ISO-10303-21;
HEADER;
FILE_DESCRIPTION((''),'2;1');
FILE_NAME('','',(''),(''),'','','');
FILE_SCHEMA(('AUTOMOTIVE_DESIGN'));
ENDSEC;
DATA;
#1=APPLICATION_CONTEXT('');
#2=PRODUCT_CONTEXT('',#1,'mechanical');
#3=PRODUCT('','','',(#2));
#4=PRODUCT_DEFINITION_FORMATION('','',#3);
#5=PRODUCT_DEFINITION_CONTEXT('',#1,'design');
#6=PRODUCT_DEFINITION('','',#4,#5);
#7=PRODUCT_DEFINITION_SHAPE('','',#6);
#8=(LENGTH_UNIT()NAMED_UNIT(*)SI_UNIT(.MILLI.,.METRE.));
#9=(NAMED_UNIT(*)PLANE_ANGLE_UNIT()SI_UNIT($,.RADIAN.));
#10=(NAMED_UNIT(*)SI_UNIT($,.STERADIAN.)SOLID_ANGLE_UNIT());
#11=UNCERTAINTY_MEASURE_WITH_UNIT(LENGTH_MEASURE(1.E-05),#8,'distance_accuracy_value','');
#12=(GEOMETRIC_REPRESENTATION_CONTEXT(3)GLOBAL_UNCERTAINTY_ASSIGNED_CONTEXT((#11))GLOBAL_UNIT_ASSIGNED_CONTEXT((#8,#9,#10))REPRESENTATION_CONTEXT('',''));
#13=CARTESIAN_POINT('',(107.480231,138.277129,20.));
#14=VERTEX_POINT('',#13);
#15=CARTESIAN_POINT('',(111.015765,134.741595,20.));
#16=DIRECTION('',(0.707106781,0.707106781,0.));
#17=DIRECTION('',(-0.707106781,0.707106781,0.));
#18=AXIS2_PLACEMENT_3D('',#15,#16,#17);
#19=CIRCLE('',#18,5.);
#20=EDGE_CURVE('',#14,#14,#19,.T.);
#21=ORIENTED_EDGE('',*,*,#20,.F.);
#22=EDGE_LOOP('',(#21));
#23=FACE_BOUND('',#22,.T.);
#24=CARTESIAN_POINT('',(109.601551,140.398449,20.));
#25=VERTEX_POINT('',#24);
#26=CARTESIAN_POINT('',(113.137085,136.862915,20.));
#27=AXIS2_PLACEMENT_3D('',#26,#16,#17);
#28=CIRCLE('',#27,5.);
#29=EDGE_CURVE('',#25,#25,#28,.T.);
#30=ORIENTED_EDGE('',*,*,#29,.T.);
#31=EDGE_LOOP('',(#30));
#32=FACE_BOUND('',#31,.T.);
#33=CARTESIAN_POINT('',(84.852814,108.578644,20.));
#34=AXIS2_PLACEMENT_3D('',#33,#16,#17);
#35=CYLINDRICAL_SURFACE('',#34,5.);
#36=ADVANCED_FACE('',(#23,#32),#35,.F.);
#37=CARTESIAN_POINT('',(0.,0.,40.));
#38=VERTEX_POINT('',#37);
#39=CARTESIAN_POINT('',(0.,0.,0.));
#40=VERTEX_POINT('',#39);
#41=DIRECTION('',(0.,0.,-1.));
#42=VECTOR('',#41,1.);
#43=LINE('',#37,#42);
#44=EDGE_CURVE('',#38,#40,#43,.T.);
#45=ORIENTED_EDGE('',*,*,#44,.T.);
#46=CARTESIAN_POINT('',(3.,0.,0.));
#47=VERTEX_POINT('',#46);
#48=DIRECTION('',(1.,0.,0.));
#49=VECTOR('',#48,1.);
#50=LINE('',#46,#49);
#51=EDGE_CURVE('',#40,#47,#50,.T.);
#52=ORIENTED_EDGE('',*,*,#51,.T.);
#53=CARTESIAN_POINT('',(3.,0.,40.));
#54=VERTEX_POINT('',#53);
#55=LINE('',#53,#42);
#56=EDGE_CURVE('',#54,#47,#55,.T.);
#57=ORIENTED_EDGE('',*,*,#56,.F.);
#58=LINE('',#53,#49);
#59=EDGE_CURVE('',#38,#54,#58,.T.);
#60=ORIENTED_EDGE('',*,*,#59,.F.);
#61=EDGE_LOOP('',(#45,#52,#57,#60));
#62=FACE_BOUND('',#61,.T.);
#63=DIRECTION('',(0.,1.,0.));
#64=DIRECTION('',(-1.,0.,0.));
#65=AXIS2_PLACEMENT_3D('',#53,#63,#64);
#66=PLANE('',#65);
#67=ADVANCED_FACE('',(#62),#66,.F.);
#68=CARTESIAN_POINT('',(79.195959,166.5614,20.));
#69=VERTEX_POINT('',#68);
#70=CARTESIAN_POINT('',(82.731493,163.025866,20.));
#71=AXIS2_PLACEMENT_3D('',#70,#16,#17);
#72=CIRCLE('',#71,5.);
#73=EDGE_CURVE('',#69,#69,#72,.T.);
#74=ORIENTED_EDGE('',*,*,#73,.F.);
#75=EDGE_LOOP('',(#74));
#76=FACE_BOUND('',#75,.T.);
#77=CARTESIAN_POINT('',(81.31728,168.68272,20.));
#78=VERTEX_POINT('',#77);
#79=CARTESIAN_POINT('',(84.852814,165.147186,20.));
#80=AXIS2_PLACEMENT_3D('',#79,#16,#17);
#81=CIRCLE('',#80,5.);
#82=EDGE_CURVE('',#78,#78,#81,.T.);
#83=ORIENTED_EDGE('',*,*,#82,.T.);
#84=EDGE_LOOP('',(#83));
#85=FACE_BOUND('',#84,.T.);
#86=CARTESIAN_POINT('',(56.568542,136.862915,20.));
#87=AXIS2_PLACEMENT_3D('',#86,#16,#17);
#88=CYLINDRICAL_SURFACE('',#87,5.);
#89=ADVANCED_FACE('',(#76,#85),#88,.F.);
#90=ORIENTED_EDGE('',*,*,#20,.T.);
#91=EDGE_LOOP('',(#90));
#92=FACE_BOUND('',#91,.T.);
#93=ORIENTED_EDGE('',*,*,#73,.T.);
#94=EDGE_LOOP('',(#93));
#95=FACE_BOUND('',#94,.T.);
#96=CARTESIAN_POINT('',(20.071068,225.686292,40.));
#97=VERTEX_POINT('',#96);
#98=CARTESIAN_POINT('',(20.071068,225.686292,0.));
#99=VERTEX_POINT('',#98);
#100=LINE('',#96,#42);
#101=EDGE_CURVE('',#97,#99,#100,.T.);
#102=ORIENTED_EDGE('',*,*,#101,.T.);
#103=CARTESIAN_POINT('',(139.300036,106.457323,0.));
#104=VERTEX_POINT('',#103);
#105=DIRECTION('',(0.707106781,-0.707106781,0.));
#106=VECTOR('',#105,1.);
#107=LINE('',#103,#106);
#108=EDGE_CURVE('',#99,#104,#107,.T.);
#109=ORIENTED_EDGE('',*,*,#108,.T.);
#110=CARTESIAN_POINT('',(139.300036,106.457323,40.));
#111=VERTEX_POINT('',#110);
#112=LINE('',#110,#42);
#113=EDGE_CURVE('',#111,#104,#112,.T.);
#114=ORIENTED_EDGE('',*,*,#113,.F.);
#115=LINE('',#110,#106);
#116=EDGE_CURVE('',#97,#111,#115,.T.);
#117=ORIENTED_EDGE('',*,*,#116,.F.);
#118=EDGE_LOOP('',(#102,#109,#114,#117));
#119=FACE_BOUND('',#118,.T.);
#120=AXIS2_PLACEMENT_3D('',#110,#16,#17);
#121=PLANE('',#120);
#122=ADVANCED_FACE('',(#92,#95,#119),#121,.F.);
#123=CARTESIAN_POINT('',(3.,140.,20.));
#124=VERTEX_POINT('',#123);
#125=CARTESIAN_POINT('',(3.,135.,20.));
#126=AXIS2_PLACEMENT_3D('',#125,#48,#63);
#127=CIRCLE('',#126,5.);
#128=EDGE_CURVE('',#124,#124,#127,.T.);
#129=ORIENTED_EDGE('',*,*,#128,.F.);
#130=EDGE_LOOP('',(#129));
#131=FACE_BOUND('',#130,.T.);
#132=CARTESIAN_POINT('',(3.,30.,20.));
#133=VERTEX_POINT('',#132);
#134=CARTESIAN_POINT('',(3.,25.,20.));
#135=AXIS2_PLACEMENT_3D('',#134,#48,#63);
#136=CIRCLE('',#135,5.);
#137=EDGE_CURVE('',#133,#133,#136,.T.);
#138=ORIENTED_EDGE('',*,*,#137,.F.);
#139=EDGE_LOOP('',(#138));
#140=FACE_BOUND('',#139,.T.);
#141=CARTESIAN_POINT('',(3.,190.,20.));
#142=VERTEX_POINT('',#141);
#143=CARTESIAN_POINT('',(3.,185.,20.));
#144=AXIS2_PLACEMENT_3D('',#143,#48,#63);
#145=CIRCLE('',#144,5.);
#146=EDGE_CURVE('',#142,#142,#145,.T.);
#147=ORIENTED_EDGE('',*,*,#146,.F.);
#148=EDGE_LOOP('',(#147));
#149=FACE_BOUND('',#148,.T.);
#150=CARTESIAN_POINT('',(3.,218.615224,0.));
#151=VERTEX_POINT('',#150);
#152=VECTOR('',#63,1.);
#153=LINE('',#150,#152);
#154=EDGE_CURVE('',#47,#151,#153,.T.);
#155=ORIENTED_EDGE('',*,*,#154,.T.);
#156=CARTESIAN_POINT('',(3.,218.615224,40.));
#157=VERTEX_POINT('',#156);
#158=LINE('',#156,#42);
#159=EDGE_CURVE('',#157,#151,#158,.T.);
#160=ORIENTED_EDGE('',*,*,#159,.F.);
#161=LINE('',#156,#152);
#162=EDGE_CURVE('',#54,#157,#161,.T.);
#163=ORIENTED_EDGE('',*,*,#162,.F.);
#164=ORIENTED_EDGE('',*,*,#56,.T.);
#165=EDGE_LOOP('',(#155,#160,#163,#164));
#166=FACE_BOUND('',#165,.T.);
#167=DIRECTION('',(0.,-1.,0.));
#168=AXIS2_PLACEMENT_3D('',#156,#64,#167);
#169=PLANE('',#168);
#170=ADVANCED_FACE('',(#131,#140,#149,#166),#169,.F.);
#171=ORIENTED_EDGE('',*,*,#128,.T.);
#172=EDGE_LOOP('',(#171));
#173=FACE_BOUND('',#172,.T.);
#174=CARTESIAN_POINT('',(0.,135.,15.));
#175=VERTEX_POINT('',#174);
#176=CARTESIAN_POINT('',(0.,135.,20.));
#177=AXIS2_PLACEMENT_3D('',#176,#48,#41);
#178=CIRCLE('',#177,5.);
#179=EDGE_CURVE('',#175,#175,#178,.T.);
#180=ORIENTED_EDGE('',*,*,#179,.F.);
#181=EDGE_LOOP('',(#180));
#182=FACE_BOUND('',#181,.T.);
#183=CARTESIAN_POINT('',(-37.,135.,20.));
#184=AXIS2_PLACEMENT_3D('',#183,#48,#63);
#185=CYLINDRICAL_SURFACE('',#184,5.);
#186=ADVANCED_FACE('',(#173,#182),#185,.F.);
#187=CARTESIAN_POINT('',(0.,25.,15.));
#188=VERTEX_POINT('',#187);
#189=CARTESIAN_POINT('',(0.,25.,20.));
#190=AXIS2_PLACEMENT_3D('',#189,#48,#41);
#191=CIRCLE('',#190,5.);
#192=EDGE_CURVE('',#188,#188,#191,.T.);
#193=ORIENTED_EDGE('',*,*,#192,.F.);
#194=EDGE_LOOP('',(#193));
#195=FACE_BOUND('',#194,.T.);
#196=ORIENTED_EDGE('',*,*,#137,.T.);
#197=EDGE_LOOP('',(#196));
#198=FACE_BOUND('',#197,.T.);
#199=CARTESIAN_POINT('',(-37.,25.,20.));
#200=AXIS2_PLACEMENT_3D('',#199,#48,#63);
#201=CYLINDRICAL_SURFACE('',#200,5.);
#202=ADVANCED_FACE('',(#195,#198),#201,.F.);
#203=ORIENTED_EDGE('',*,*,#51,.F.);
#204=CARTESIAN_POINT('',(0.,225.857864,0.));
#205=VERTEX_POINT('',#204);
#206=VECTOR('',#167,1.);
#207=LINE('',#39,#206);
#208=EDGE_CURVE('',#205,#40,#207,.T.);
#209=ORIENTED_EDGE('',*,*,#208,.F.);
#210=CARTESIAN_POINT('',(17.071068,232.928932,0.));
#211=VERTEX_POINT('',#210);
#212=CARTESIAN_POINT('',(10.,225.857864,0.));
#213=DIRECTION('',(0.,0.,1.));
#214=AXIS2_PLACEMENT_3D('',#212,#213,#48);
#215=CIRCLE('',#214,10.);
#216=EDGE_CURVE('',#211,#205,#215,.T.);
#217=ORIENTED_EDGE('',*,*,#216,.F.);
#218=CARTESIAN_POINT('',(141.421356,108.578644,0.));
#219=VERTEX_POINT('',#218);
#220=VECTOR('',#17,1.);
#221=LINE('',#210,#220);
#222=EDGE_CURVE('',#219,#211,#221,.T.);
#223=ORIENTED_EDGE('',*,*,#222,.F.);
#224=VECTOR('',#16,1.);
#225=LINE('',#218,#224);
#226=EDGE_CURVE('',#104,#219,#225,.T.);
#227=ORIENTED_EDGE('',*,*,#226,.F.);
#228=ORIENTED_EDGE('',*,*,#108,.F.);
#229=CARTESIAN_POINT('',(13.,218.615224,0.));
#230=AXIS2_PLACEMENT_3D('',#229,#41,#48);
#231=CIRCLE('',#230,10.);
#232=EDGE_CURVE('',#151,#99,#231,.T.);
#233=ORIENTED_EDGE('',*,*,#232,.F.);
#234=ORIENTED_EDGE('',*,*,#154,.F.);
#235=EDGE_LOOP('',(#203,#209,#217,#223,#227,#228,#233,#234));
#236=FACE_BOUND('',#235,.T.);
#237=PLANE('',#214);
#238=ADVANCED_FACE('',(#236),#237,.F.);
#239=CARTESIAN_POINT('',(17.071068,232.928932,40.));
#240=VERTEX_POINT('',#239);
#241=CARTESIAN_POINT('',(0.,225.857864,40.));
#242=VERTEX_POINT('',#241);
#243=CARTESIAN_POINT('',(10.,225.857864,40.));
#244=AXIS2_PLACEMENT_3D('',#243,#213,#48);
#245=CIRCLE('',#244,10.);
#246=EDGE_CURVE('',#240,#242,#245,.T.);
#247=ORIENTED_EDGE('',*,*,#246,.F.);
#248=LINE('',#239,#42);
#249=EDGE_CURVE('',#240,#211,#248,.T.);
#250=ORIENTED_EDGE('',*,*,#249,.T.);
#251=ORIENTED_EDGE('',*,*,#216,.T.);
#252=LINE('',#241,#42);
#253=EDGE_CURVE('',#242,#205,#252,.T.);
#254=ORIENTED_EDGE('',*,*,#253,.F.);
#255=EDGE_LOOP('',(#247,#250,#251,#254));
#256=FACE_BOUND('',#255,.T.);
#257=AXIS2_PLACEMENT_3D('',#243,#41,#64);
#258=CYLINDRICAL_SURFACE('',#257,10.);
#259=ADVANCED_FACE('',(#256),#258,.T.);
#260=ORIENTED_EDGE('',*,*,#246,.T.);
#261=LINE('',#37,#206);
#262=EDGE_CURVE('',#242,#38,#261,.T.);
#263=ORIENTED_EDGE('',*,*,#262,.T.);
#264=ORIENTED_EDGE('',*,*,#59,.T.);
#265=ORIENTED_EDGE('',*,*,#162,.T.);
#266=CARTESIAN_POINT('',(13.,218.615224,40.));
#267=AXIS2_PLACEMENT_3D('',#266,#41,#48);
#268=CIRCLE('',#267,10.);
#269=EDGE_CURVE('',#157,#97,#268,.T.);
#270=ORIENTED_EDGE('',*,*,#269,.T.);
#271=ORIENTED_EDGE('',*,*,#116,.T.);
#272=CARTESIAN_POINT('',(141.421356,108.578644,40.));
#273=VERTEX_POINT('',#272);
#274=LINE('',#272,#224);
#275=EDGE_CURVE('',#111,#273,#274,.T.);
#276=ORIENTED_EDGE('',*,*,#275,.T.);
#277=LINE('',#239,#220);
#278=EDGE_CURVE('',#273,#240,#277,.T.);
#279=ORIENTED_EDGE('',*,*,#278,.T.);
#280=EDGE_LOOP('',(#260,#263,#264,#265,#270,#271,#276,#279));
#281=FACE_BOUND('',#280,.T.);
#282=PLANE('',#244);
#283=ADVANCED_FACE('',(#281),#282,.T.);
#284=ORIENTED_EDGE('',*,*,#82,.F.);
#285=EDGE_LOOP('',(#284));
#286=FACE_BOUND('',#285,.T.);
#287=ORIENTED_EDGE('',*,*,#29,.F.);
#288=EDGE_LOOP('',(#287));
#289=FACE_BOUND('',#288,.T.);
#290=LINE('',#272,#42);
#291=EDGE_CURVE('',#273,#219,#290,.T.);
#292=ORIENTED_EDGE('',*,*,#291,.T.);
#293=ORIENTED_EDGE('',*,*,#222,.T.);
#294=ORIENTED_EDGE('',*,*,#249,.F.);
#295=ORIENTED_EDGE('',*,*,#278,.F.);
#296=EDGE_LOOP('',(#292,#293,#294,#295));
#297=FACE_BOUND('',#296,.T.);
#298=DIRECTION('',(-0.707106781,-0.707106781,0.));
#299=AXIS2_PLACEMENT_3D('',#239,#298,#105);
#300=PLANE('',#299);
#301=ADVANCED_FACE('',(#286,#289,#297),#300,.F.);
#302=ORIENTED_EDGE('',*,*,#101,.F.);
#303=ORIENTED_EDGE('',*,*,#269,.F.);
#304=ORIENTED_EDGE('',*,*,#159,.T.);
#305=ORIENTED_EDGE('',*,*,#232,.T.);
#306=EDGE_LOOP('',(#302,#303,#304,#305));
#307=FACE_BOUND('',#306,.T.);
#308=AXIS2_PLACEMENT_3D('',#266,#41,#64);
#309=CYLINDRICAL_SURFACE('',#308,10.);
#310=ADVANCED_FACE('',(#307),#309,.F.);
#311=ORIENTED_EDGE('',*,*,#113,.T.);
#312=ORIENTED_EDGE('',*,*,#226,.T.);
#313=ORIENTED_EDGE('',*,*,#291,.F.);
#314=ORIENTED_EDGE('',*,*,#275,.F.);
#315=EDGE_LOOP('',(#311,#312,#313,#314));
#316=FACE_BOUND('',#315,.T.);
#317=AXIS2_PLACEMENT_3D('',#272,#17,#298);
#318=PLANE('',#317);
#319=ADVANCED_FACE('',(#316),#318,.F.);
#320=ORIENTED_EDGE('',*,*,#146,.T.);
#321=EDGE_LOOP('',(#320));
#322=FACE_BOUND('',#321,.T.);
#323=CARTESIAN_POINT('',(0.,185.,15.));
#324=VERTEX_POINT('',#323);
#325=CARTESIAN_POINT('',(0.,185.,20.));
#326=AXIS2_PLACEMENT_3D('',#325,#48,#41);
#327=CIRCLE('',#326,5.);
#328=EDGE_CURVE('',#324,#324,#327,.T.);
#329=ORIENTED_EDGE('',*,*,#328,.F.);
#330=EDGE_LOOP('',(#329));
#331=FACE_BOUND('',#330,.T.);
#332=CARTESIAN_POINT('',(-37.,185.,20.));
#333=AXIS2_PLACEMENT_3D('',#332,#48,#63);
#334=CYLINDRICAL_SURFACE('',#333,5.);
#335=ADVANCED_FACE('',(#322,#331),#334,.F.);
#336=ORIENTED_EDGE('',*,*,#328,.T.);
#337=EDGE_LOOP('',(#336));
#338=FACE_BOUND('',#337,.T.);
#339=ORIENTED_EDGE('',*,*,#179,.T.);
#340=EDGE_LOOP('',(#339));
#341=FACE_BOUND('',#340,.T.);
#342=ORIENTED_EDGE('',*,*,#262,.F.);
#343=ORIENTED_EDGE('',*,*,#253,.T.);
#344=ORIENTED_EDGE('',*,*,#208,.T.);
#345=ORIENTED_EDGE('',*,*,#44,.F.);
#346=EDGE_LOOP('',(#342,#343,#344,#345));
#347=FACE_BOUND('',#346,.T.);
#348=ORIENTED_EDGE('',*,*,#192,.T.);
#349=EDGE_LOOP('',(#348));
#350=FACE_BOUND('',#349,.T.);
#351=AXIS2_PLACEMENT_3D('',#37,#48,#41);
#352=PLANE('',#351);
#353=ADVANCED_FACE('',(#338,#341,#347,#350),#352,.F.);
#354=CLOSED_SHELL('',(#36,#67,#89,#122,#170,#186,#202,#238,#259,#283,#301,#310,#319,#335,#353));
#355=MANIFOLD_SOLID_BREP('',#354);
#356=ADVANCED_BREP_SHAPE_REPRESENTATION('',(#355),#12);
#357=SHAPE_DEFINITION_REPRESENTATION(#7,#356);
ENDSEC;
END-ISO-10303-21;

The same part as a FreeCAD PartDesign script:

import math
import FreeCAD as App
import Part
import Sketcher
Q = App.Units.Quantity

doc = App.newDocument("Part")
body = doc.addObject("PartDesign::Body", "Body")

sketch1 = body.newObject("Sketcher::SketchObject", "Sketch")
sketch1.AttachmentSupport = (doc.getObject("XY_Plane"), [""])
sketch1.MapMode = "FlatFace"
sketch1.addGeometry(Part.LineSegment(App.Vector(0, 225.9, 0), App.Vector(0, 0, 0)), False)
sketch1.addGeometry(Part.LineSegment(App.Vector(0, 0, 0), App.Vector(3, 0, 0)), False)
sketch1.addGeometry(Part.LineSegment(App.Vector(3, 0, 0), App.Vector(3, 218.6, 0)), False)
sketch1.addGeometry(Part.ArcOfCircle(Part.Circle(App.Vector(13, 218.6, 0), App.Vector(0, 0, 1), 10), math.radians(45), math.radians(180)), False)
sketch1.addGeometry(Part.LineSegment(App.Vector(20.1, 225.7, 0), App.Vector(139.3, 106.5, 0)), False)
sketch1.addGeometry(Part.LineSegment(App.Vector(139.3, 106.5, 0), App.Vector(141.4, 108.6, 0)), False)
sketch1.addGeometry(Part.LineSegment(App.Vector(141.4, 108.6, 0), App.Vector(17.1, 232.9, 0)), False)
sketch1.addGeometry(Part.ArcOfCircle(Part.Circle(App.Vector(10, 225.9, 0), App.Vector(0, 0, 1), 10), math.radians(45), math.radians(180)), False)
sketch1.addConstraint(Sketcher.Constraint("Coincident", 0, 2, 1, 1))
sketch1.addConstraint(Sketcher.Constraint("Coincident", 1, 2, 2, 1))
sketch1.addConstraint(Sketcher.Constraint("Tangent", 2, 2, 3, 2))
sketch1.addConstraint(Sketcher.Constraint("Tangent", 3, 1, 4, 1))
sketch1.addConstraint(Sketcher.Constraint("Coincident", 4, 2, 5, 1))
sketch1.addConstraint(Sketcher.Constraint("Coincident", 5, 2, 6, 1))
sketch1.addConstraint(Sketcher.Constraint("Tangent", 6, 2, 7, 1))
sketch1.addConstraint(Sketcher.Constraint("Tangent", 7, 2, 0, 1))
sketch1.addConstraint(Sketcher.Constraint("Vertical", 0))
sketch1.addConstraint(Sketcher.Constraint("Horizontal", 1))
sketch1.addConstraint(Sketcher.Constraint("Vertical", 2))
sketch1.addConstraint(Sketcher.Constraint("Coincident", 0, 2, -1, 1))
sketch1.addConstraint(Sketcher.Constraint("Equal", 3, 7))
sketch1.addConstraint(Sketcher.Constraint("Perpendicular", 4, 5))
sketch1.addConstraint(Sketcher.Constraint("Perpendicular", 5, 6))
sketch1.addConstraint(Sketcher.Constraint("Radius", 3, Q("10 mm")))
sketch1.addConstraint(Sketcher.Constraint("DistanceX", 1, 1, 1, 2, Q("3 mm")))
sketch1.addConstraint(Sketcher.Constraint("Angle", 4, Q("-45 deg")))
sketch1.addConstraint(Sketcher.Constraint("Distance", 5, Q("3 mm")))
sketch1.addConstraint(Sketcher.Constraint("DistanceY", 4, 2, 3, 3, Q("112.1579 mm")))
sketch1.addConstraint(Sketcher.Constraint("DistanceY", 0, 2, 0, 1, Q("225.857864 mm")))
pad1 = body.newObject("PartDesign::Pad", "Pad")
pad1.Profile = sketch1
pad1.Length = 40

sketch2 = body.newObject("Sketcher::SketchObject", "Sketch001")
sketch2.AttachmentSupport = (doc.getObject("YZ_Plane"), [""])
sketch2.MapMode = "FlatFace"
sketch2.AttachmentOffset = App.Placement(App.Vector(0, 0, 3), App.Rotation())
sketch2.addGeometry(Part.Circle(App.Vector(185, 20, 0), App.Vector(0, 0, 1), 5), False)
sketch2.addGeometry(Part.Circle(App.Vector(25, 20, 0), App.Vector(0, 0, 1), 5), False)
sketch2.addGeometry(Part.Circle(App.Vector(135, 20, 0), App.Vector(0, 0, 1), 5), False)
sketch2.addConstraint(Sketcher.Constraint("Equal", 0, 1))
sketch2.addConstraint(Sketcher.Constraint("Equal", 1, 2))
sketch2.addConstraint(Sketcher.Constraint("Horizontal", 0, 3, 1, 3))
sketch2.addConstraint(Sketcher.Constraint("Horizontal", 1, 3, 2, 3))
sketch2.addConstraint(Sketcher.Constraint("Diameter", 0, Q("10 mm")))
sketch2.addConstraint(Sketcher.Constraint("DistanceX", -1, 1, 0, 3, Q("185 mm")))
sketch2.addConstraint(Sketcher.Constraint("DistanceY", -1, 1, 0, 3, Q("20 mm")))
sketch2.addConstraint(Sketcher.Constraint("DistanceX", -1, 1, 1, 3, Q("25 mm")))
sketch2.addConstraint(Sketcher.Constraint("DistanceX", -1, 1, 2, 3, Q("135 mm")))
pocket1 = body.newObject("PartDesign::Pocket", "Pocket")
pocket1.Profile = sketch2
pocket1.Length = 40

sketch3 = body.newObject("Sketcher::SketchObject", "Sketch002")
sketch3.Placement = App.Placement(App.Vector(125, 125, 0), App.Rotation(App.Vector(0, 0, -1), App.Vector(-0.707106781, 0.707106781, 0), App.Vector(0.707106781, 0.707106781, 0), "ZXY"))
sketch3.addGeometry(Part.Circle(App.Vector(-20, 17, 0), App.Vector(0, 0, 1), 5), False)
sketch3.addGeometry(Part.Circle(App.Vector(-20, 57, 0), App.Vector(0, 0, 1), 5), False)
sketch3.addConstraint(Sketcher.Constraint("Equal", 0, 1))
sketch3.addConstraint(Sketcher.Constraint("Vertical", 0, 3, 1, 3))
sketch3.addConstraint(Sketcher.Constraint("Diameter", 0, Q("10 mm")))
sketch3.addConstraint(Sketcher.Constraint("DistanceX", 0, 3, -1, 1, Q("20 mm")))
sketch3.addConstraint(Sketcher.Constraint("DistanceY", 0, 3, 1, 3, Q("40 mm")))
sketch3.addConstraint(Sketcher.Constraint("DistanceY", -1, 1, 0, 3, Q("16.776695 mm")))
pocket2 = body.newObject("PartDesign::Pocket", "Pocket001")
pocket2.Profile = sketch3
pocket2.Length = 40

doc.recompute()
